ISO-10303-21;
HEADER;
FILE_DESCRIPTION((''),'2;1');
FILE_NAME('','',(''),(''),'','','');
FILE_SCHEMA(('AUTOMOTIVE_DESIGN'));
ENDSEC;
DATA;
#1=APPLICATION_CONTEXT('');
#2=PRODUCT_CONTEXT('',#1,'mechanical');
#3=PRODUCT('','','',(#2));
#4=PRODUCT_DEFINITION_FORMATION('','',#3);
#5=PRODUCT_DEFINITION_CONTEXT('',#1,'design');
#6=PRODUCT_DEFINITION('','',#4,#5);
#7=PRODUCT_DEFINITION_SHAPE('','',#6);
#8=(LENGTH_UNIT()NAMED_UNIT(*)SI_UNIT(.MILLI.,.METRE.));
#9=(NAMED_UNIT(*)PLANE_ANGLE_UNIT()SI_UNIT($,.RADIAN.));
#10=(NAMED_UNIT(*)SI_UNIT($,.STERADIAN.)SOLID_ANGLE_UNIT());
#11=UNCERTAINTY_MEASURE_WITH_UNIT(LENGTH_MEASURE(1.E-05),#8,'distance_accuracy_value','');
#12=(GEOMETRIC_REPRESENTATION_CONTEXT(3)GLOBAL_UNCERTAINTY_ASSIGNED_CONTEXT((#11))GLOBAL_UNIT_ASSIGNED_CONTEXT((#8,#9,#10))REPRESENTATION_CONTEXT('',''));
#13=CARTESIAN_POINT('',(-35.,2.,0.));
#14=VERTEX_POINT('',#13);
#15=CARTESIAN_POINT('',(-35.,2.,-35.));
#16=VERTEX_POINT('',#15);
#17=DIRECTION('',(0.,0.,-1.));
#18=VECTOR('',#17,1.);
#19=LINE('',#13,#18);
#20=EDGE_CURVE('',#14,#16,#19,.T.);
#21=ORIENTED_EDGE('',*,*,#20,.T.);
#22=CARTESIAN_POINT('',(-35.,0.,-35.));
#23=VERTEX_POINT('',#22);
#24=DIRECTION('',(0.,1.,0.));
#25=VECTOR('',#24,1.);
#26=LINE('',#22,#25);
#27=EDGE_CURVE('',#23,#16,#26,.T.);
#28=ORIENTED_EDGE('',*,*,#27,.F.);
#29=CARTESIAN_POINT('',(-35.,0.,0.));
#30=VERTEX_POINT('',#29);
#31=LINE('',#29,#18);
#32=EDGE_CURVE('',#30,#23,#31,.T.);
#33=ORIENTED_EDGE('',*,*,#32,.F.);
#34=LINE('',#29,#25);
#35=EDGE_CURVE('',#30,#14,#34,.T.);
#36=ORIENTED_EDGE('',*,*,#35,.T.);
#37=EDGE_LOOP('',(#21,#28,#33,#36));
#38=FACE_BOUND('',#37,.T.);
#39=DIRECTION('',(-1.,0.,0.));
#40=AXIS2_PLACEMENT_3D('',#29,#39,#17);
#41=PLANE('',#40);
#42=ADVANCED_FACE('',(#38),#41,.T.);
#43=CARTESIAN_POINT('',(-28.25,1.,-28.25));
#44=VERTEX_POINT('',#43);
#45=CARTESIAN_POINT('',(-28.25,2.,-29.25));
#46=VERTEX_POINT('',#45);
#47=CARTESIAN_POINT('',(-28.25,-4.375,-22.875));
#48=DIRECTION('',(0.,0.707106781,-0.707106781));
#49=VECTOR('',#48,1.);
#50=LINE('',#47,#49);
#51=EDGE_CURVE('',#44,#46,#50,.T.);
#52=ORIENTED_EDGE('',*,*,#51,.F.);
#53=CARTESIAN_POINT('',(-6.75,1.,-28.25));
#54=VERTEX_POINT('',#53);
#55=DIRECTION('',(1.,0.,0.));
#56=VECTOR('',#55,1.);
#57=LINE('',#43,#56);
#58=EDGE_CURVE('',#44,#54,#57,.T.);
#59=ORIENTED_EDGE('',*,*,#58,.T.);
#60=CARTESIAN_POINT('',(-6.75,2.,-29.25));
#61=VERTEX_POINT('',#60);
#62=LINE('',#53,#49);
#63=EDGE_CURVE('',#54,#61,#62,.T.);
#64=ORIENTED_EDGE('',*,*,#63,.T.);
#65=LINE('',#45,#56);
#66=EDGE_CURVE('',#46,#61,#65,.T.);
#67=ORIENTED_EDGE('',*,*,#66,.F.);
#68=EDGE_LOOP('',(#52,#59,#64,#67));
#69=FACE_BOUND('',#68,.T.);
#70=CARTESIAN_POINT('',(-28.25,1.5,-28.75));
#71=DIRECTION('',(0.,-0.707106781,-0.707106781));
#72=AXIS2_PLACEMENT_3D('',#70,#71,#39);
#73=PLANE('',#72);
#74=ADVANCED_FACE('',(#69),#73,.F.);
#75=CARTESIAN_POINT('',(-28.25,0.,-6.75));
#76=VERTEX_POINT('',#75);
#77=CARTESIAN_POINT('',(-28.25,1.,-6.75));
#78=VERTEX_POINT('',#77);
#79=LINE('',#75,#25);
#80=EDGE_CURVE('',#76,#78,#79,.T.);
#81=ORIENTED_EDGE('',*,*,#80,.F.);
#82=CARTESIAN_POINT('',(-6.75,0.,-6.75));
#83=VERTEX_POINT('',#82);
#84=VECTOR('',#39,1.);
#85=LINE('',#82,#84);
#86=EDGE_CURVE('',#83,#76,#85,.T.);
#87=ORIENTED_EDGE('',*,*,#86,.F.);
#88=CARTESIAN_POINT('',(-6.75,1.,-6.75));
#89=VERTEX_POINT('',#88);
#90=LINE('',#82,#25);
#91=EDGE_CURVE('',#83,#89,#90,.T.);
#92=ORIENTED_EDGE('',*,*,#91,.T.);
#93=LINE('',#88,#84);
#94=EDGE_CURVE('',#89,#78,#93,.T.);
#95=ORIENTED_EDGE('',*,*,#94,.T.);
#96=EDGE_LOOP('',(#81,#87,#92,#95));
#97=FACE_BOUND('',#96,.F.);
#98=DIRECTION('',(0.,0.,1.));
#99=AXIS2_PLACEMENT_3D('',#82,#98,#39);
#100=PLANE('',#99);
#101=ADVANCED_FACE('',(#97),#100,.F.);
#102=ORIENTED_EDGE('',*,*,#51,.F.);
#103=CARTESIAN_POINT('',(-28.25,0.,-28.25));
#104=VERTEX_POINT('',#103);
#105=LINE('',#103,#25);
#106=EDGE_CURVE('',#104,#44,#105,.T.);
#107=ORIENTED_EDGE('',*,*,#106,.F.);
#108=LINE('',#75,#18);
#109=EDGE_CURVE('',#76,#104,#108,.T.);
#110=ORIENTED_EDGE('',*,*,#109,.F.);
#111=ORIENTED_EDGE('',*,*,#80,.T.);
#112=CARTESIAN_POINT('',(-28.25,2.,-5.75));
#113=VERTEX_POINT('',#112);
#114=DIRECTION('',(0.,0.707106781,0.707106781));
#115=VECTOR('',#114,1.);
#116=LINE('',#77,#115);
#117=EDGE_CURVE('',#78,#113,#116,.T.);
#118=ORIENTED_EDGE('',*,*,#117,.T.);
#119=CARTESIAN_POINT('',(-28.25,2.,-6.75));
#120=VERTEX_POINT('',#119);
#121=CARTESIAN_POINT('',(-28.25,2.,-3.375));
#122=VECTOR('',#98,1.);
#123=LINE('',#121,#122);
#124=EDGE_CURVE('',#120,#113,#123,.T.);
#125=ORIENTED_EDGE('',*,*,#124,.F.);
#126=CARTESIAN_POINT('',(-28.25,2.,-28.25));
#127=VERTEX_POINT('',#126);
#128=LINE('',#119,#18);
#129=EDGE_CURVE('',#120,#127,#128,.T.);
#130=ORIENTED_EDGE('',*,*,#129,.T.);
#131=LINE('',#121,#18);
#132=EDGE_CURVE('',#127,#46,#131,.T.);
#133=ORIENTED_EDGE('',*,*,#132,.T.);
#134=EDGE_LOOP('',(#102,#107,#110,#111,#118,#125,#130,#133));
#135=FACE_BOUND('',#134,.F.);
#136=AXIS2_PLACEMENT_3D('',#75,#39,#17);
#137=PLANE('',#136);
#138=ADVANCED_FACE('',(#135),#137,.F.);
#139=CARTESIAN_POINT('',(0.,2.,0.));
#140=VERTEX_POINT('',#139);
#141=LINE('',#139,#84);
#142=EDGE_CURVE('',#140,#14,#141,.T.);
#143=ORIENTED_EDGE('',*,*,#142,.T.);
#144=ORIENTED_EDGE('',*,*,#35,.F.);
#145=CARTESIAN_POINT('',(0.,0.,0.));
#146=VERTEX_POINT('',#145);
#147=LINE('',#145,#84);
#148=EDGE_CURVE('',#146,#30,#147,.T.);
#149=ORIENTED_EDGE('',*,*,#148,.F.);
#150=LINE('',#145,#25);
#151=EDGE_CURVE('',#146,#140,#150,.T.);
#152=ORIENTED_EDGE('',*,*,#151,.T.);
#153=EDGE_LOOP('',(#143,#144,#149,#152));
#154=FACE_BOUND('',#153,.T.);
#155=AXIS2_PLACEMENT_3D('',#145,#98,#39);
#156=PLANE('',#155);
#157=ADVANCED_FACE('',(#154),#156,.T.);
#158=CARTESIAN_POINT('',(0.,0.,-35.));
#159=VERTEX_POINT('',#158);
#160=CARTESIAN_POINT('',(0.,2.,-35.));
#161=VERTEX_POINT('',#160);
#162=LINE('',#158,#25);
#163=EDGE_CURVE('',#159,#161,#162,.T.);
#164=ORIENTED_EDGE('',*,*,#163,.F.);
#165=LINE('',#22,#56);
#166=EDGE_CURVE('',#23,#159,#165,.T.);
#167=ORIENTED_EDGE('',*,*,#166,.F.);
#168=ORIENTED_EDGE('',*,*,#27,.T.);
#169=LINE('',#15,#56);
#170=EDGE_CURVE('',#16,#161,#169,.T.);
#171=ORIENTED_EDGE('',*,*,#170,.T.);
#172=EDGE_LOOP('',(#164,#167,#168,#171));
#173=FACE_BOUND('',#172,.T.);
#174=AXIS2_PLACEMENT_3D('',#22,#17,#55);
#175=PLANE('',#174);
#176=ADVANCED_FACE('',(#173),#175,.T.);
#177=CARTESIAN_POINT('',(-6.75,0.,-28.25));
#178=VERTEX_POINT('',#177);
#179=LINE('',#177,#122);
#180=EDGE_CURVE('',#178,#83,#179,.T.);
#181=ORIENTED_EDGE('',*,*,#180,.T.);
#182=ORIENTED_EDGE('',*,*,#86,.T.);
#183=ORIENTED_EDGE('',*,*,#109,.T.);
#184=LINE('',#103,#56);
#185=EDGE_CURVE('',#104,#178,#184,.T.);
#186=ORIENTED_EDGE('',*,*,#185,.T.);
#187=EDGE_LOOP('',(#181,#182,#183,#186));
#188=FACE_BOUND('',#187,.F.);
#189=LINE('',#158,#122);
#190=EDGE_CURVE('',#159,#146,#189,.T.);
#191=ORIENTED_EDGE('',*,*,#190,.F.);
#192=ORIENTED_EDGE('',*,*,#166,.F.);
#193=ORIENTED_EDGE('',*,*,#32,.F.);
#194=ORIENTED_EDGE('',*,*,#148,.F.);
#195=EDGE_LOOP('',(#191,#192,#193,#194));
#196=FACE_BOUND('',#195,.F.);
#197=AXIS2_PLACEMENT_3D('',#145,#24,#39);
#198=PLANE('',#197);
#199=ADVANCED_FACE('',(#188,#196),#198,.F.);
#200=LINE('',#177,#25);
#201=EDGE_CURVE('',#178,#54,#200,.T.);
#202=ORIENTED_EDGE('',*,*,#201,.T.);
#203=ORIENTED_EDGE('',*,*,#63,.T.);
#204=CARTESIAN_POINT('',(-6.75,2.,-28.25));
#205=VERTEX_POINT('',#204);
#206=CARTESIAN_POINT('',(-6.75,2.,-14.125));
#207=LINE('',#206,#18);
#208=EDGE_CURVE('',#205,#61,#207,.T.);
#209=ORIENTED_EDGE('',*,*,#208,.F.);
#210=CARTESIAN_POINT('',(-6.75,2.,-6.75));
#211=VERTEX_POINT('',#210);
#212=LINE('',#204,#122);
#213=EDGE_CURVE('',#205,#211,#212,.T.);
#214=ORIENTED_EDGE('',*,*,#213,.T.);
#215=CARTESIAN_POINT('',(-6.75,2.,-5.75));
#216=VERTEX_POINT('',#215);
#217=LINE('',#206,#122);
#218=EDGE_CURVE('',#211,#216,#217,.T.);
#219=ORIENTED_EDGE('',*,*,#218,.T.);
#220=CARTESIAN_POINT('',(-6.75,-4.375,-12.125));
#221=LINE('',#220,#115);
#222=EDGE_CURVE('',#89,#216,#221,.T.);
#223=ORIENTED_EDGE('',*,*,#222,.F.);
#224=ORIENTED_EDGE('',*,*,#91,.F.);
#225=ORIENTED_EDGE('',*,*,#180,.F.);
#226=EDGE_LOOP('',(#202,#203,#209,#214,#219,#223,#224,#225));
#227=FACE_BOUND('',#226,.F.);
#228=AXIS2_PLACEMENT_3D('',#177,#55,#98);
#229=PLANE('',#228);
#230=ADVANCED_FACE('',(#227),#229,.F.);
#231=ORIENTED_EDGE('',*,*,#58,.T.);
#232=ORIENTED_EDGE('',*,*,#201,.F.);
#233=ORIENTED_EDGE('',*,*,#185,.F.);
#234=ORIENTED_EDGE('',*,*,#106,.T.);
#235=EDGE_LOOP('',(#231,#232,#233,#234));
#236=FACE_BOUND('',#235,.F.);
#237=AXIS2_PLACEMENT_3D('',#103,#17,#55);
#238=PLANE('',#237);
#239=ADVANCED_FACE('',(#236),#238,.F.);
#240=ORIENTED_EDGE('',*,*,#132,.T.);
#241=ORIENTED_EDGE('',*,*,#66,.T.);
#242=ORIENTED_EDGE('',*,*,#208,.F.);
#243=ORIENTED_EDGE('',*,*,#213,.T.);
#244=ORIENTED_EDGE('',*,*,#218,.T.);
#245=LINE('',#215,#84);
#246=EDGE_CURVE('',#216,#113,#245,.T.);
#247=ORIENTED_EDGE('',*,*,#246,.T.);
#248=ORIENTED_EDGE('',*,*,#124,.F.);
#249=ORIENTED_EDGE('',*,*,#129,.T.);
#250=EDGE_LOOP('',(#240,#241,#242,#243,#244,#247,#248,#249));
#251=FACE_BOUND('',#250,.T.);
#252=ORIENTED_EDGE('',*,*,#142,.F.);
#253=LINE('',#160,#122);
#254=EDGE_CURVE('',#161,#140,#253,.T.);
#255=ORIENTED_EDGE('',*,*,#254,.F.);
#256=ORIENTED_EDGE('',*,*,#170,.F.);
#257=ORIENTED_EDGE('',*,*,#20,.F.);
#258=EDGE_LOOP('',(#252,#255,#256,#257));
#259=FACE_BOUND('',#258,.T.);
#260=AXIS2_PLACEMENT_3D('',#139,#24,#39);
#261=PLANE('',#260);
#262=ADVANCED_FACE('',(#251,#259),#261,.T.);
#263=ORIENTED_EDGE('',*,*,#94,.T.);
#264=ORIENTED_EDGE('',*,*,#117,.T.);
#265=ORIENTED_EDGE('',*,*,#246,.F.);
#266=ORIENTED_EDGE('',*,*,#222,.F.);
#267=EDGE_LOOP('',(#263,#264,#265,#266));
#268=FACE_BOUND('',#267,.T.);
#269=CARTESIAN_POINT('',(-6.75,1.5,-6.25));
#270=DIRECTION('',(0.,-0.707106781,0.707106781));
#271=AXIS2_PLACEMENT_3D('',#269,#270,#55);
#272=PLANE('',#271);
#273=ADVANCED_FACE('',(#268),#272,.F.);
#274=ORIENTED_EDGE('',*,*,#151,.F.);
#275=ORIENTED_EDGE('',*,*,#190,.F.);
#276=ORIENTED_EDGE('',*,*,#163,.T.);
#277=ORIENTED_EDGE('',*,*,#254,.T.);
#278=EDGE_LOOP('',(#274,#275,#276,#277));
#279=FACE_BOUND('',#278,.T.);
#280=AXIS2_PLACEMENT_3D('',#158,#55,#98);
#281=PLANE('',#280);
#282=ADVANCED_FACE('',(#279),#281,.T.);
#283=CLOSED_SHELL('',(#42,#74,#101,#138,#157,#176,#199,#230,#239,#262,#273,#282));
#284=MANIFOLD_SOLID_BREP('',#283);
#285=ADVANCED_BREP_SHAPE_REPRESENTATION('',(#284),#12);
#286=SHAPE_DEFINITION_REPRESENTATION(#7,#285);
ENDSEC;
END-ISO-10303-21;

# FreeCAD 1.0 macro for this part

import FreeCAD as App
import Part
import Sketcher

V = App.Vector


def edges_at(feature, points):
    """Names of the edges that pass closest to the given points."""
    edges = feature.Shape.Edges
    near = lambda p: min(range(len(edges)), key=lambda i: edges[i].distToShape(Part.Vertex(*p))[0])
    return sorted({f"Edge{near(p) + 1}" for p in points})

doc = App.newDocument("Part")
params = doc.addObject("Spreadsheet::Sheet", "Params")
for row, (alias, value) in enumerate([
    ("sketch1_width", "35 mm"),
    ("sketch1_width2", "21.5 mm"),
    ("pad1_length", "2 mm"),
    ("chamfer_size", "1 mm"),
], start=1):
    params.set(f"A{row}", alias)
    params.set(f"B{row}", "=" + value)
    params.setAlias(f"B{row}", alias)

body = doc.addObject("PartDesign::Body", "Body")

# Sketch on XZ plane
sketch1 = body.newObject("Sketcher::SketchObject", "Sketch")
sketch1.AttachmentSupport = (doc.getObject("XZ_Plane"), [""])
sketch1.MapMode = "FlatFace"
sketch1.addGeometry([
    Part.LineSegment(V(-35, 0, 0), V(0, 0, 0)),  # 0
    Part.LineSegment(V(0, 0, 0), V(0, -35, 0)),  # 1
    Part.LineSegment(V(0, -35, 0), V(-35, -35, 0)),  # 2
    Part.LineSegment(V(-35, -35, 0), V(-35, 0, 0)),  # 3
    Part.LineSegment(V(-7, -28, 0), V(-7, -7, 0)),  # 4
    Part.LineSegment(V(-7, -7, 0), V(-28, -7, 0)),  # 5
    Part.LineSegment(V(-28, -7, 0), V(-28, -28, 0)),  # 6
    Part.LineSegment(V(-28, -28, 0), V(-7, -28, 0)),  # 7
], False)
sketch1.addConstraint([
    Sketcher.Constraint("Coincident", 0, 2, 1, 1),
    Sketcher.Constraint("Coincident", 1, 2, 2, 1),
    Sketcher.Constraint("Coincident", 2, 2, 3, 1),
    Sketcher.Constraint("Coincident", 3, 2, 0, 1),
    Sketcher.Constraint("Coincident", 4, 2, 5, 1),
    Sketcher.Constraint("Coincident", 5, 2, 6, 1),
    Sketcher.Constraint("Coincident", 6, 2, 7, 1),
    Sketcher.Constraint("Coincident", 7, 2, 4, 1),
    Sketcher.Constraint("Horizontal", 0),
    Sketcher.Constraint("Vertical", 1),
    Sketcher.Constraint("Horizontal", 2),
    Sketcher.Constraint("Vertical", 3),
    Sketcher.Constraint("Vertical", 4),
    Sketcher.Constraint("Horizontal", 5),
    Sketcher.Constraint("Vertical", 6),
    Sketcher.Constraint("Horizontal", 7),
    Sketcher.Constraint("Coincident", 0, 2, -1, 1),
    Sketcher.Constraint("Equal", 2, 1),
    Sketcher.Constraint("Equal", 7, 4),
    Sketcher.Constraint("DistanceX", 0, 1, 0, 2, 35.0),
    Sketcher.Constraint("DistanceX", 5, 2, 5, 1, 21.5),
    Sketcher.Constraint("DistanceX", 4, 2, -1, 1, 6.75),
    Sketcher.Constraint("DistanceY", 4, 2, -1, 1, 6.75),
])
sketch1.setExpression("Constraints[19]", "Params.sketch1_width")
sketch1.setExpression("Constraints[20]", "Params.sketch1_width2")
pad1 = body.newObject("PartDesign::Pad", "Pad")
pad1.Profile = sketch1
pad1.setExpression("Length", "Params.pad1_length")
pad1.Reversed = True
doc.recompute()

chamfer = body.newObject("PartDesign::Chamfer", "Chamfer")
chamfer.Base = (pad1, edges_at(pad1, [(-17.5, 2, -6.75), (-17.5, 2, -28.25)]))
chamfer.setExpression("Size", "Params.chamfer_size")

doc.recompute()
